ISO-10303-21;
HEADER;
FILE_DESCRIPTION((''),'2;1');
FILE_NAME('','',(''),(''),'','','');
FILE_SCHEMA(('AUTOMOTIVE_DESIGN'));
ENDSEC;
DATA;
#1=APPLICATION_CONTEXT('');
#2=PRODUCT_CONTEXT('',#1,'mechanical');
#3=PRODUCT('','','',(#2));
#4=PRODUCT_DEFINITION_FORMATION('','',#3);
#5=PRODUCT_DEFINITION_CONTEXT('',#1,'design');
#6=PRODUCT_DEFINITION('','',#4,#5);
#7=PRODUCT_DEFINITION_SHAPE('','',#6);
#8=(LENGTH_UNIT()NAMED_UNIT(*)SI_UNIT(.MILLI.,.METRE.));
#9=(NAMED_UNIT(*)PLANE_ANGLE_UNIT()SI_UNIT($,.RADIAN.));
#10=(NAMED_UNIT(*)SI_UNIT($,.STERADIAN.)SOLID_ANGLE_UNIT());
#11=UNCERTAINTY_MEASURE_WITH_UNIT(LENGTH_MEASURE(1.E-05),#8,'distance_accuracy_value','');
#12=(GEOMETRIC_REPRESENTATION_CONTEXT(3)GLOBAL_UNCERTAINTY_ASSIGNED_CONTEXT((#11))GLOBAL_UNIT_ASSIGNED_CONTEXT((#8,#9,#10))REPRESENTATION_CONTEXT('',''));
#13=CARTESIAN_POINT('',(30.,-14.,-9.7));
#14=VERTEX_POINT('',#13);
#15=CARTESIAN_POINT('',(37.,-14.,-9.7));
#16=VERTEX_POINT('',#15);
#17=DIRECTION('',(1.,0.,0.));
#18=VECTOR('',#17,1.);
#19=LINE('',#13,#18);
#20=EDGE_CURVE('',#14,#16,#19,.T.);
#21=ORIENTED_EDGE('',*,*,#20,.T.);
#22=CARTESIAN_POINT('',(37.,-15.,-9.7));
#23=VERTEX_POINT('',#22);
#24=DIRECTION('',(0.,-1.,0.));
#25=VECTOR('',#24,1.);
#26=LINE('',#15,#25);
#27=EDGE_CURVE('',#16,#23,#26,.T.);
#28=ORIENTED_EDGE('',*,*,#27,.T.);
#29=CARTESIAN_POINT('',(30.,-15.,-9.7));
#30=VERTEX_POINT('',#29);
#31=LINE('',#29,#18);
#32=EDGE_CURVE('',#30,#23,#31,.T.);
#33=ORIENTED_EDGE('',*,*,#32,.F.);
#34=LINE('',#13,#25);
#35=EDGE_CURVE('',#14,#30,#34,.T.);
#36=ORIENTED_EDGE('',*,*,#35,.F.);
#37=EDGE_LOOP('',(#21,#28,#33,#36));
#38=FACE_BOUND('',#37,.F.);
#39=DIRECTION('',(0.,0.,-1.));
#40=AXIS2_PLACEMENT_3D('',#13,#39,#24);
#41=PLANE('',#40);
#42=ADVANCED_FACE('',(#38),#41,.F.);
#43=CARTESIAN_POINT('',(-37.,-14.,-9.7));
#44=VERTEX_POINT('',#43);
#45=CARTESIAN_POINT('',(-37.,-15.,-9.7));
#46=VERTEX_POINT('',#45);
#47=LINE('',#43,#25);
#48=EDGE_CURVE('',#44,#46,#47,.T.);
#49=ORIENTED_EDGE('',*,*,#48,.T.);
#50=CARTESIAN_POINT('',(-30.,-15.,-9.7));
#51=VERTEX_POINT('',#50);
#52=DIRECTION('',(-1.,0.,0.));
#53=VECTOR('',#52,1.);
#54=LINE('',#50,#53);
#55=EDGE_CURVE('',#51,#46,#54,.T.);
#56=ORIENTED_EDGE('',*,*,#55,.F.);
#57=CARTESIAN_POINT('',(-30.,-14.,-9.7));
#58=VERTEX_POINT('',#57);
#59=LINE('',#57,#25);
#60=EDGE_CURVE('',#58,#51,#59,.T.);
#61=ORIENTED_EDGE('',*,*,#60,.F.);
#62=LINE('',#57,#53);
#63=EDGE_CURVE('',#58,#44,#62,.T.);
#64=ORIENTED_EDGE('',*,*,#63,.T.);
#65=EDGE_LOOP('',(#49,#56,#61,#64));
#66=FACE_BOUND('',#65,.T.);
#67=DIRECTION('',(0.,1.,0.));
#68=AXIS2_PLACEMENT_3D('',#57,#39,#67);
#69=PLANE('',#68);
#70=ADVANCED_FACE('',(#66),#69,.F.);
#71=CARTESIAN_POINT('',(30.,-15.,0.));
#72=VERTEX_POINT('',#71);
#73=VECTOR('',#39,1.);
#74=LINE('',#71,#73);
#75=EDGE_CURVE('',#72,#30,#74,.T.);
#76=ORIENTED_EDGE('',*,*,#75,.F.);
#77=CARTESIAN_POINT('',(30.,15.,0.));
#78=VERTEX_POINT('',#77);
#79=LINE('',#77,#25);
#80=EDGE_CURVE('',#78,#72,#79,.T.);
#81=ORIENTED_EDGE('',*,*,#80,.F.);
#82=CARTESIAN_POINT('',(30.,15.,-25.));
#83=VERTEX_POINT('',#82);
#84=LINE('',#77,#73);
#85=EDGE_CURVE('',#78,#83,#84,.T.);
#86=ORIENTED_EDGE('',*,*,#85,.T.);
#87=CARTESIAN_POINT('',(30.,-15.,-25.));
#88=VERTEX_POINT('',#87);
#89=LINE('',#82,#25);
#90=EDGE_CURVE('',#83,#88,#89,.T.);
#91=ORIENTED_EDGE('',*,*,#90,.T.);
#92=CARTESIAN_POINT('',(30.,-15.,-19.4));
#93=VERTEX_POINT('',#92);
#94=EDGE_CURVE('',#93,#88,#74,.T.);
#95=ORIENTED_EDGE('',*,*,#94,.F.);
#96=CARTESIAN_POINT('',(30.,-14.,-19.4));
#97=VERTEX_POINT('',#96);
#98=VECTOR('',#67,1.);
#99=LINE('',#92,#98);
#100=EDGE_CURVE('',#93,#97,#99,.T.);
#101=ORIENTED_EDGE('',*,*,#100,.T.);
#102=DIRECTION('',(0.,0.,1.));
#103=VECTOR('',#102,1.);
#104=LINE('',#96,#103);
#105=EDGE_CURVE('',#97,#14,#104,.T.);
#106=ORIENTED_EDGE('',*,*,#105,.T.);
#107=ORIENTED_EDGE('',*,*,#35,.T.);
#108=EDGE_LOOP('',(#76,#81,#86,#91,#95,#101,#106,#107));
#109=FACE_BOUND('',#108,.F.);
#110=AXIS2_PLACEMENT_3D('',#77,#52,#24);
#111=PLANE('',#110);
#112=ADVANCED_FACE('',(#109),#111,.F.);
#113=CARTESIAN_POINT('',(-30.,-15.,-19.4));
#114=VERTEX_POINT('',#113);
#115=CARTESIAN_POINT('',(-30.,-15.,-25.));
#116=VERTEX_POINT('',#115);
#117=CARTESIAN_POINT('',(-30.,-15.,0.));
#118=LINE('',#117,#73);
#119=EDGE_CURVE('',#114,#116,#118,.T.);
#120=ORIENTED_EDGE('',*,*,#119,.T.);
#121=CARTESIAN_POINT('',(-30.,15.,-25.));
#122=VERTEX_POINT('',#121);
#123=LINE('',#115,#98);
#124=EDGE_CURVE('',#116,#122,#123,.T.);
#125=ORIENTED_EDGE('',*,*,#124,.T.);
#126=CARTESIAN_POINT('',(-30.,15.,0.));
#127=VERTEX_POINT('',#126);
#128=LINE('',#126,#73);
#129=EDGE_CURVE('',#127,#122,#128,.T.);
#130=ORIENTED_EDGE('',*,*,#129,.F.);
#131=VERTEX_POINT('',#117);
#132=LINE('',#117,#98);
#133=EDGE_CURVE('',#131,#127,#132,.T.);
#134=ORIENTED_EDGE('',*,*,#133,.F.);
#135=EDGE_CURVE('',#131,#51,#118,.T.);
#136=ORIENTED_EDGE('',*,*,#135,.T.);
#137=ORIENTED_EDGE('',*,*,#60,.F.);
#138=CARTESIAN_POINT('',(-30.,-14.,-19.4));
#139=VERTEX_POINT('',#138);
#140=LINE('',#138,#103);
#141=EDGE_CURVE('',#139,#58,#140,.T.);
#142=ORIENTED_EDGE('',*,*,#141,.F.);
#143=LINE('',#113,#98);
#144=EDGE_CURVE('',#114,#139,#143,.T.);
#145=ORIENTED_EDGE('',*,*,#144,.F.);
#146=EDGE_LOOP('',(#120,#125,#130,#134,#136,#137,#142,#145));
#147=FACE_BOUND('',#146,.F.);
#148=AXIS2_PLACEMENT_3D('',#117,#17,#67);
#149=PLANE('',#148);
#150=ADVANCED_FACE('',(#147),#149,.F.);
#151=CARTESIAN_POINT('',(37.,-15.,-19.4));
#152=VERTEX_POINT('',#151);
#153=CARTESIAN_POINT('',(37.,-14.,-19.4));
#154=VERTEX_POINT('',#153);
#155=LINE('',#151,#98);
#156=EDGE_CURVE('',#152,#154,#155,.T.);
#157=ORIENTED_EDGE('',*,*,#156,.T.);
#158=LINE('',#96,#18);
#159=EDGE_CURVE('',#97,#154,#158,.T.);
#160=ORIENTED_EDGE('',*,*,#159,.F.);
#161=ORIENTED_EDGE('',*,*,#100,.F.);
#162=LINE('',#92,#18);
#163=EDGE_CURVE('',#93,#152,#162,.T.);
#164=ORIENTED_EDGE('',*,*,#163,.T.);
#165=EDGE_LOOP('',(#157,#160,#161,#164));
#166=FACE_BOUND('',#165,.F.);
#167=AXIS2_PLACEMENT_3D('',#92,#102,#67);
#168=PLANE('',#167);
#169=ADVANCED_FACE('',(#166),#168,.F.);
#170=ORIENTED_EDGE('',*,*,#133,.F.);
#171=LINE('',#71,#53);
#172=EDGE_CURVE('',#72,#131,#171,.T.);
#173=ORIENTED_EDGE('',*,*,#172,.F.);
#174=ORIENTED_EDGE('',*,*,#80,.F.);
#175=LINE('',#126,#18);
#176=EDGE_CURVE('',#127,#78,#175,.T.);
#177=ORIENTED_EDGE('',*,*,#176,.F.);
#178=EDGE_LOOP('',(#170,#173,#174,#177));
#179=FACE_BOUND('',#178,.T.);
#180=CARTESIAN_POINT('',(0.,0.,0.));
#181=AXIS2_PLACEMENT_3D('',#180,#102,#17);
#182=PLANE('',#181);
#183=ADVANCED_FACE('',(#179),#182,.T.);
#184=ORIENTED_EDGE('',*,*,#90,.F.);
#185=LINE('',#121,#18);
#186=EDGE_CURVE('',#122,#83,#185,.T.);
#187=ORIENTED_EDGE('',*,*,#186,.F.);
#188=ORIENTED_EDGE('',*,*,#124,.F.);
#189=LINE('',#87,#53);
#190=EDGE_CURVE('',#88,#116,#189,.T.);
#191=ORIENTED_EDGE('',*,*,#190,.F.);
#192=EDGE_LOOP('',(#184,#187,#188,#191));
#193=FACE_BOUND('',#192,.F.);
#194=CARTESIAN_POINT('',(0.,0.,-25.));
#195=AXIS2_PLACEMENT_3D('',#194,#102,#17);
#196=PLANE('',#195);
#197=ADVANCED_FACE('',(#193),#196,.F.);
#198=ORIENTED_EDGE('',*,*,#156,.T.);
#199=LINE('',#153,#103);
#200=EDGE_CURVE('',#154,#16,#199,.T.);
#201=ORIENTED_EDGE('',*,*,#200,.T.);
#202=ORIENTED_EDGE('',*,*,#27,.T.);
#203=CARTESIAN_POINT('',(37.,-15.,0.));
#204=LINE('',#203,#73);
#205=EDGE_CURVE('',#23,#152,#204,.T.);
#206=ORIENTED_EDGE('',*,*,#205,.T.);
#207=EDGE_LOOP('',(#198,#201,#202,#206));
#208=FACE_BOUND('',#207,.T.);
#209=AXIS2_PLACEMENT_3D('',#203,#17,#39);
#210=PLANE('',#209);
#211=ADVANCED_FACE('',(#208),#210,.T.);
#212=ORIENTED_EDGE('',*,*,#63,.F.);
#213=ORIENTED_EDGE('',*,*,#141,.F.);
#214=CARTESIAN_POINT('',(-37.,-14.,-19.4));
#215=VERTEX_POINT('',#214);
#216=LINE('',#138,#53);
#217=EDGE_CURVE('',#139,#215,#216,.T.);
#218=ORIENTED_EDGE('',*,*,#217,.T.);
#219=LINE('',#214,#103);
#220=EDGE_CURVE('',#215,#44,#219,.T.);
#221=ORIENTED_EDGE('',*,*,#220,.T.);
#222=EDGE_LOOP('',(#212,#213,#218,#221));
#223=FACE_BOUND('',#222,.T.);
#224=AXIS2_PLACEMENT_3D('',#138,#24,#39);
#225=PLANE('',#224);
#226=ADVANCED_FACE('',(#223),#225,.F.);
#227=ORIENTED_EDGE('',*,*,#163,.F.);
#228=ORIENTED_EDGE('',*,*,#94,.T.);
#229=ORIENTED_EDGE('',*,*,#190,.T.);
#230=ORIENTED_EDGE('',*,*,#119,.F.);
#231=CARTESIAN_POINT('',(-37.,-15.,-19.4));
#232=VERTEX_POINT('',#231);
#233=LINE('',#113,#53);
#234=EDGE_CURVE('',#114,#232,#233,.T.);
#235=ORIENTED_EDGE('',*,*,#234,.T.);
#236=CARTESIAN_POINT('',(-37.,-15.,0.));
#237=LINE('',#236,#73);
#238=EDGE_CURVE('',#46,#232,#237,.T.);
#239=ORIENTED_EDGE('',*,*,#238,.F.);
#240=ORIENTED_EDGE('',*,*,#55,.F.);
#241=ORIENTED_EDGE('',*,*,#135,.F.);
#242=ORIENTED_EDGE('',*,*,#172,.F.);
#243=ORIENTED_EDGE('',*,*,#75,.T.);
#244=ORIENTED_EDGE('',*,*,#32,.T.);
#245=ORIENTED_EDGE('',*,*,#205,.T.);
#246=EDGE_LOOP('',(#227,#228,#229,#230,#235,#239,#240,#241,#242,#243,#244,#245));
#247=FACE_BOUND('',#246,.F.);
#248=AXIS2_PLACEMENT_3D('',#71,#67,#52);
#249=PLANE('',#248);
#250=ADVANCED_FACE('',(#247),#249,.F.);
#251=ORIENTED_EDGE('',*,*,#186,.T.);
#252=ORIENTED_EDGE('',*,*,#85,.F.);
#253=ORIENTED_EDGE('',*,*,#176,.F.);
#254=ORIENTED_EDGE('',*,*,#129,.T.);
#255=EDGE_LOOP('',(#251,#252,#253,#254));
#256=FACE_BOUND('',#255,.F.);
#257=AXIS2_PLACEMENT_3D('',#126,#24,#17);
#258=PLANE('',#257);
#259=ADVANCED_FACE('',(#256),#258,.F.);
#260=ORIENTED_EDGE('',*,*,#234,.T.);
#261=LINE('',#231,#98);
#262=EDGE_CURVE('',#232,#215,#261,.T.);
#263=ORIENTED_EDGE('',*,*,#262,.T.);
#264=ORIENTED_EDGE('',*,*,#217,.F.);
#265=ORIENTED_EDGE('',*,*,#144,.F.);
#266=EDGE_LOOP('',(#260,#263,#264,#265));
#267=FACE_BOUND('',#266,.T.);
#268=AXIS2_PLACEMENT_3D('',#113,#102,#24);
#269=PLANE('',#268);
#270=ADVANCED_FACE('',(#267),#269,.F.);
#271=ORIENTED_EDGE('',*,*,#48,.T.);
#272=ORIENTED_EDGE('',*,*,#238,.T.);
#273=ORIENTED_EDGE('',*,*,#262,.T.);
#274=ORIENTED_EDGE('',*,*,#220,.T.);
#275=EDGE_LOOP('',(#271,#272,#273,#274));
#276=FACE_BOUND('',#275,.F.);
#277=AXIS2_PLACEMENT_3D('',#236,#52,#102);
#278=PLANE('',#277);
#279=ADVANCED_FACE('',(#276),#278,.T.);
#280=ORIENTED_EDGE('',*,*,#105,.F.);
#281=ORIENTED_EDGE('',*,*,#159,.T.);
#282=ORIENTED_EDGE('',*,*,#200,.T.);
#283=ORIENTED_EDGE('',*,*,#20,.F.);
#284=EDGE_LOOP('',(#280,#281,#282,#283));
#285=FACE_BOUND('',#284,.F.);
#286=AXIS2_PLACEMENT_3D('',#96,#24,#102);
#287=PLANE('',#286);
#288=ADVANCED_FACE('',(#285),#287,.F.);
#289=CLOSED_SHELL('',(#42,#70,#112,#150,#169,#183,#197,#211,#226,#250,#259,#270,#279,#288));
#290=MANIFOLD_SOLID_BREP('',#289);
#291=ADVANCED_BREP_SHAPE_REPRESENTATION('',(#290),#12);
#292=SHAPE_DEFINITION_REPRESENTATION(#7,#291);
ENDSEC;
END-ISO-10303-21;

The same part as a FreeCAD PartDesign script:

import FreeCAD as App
import Part
import Sketcher
from FreeCAD import Vector
Q = App.Units.Quantity

doc = App.newDocument("Part")
body = doc.addObject("PartDesign::Body", "Body")

# Sketch on XY plane
sketch1 = body.newObject("Sketcher::SketchObject", "Sketch")
sketch1.AttachmentSupport = (doc.getObject("XY_Plane"), [""])
sketch1.MapMode = "FlatFace"
sketch1.addGeometry([
    Part.LineSegment(Vector(-30, -15, 0), Vector(30, -15, 0)),
    Part.LineSegment(Vector(30, -15, 0), Vector(30, 15, 0)),
    Part.LineSegment(Vector(30, 15, 0), Vector(-30, 15, 0)),
    Part.LineSegment(Vector(-30, 15, 0), Vector(-30, -15, 0)),
], False)
sketch1.addConstraint([
    Sketcher.Constraint("Coincident", 0, 2, 1, 1),
    Sketcher.Constraint("Coincident", 1, 2, 2, 1),
    Sketcher.Constraint("Coincident", 2, 2, 3, 1),
    Sketcher.Constraint("Coincident", 3, 2, 0, 1),
    Sketcher.Constraint("Horizontal", 0),
    Sketcher.Constraint("Vertical", 1),
    Sketcher.Constraint("Horizontal", 2),
    Sketcher.Constraint("Vertical", 3),
    Sketcher.Constraint("Symmetric", 0, 2, 2, 2, -1, 1),
    Sketcher.Constraint("DistanceX", 0, 1, 0, 2, Q("60 mm")),
    Sketcher.Constraint("DistanceY", 1, 1, 1, 2, Q("30 mm")),
])
pad1 = body.newObject("PartDesign::Pad", "Pad")
pad1.Profile = sketch1
pad1.Length = 25
pad1.Reversed = True

# Sketch on YZ plane
sketch2 = body.newObject("Sketcher::SketchObject", "Sketch001")
sketch2.AttachmentSupport = (doc.getObject("YZ_Plane"), [""])
sketch2.MapMode = "FlatFace"
sketch2.AttachmentOffset = App.Placement(Vector(0, 0, 30), App.Rotation())
sketch2.addGeometry([
    Part.LineSegment(Vector(-14, -9.7, 0), Vector(-15, -9.7, 0)),
    Part.LineSegment(Vector(-15, -9.7, 0), Vector(-15, -19.4, 0)),
    Part.LineSegment(Vector(-15, -19.4, 0), Vector(-14, -19.4, 0)),
    Part.LineSegment(Vector(-14, -19.4, 0), Vector(-14, -9.7, 0)),
], False)
sketch2.addConstraint([
    Sketcher.Constraint("Coincident", 0, 2, 1, 1),
    Sketcher.Constraint("Coincident", 1, 2, 2, 1),
    Sketcher.Constraint("Coincident", 2, 2, 3, 1),
    Sketcher.Constraint("Coincident", 3, 2, 0, 1),
    Sketcher.Constraint("Horizontal", 0),
    Sketcher.Constraint("Vertical", 1),
    Sketcher.Constraint("Horizontal", 2),
    Sketcher.Constraint("Vertical", 3),
    Sketcher.Constraint("DistanceX", 0, 2, 0, 1, Q("1 mm")),
    Sketcher.Constraint("DistanceY", 1, 2, 1, 1, Q("9.7 mm")),
    Sketcher.Constraint("DistanceX", 0, 2, -1, 1, Q("15 mm")),
    Sketcher.Constraint("DistanceY", 0, 2, -1, 1, Q("9.7 mm")),
])
pad2 = body.newObject("PartDesign::Pad", "Pad001")
pad2.Profile = sketch2
pad2.Length = 7
doc.recompute()

mirrored = body.newObject("PartDesign::Mirrored", "Mirrored")
mirrored.Originals = [pad2]
mirrored.MirrorPlane = (doc.getObject("YZ_Plane"), [""])
body.Tip = mirrored

doc.recompute()
